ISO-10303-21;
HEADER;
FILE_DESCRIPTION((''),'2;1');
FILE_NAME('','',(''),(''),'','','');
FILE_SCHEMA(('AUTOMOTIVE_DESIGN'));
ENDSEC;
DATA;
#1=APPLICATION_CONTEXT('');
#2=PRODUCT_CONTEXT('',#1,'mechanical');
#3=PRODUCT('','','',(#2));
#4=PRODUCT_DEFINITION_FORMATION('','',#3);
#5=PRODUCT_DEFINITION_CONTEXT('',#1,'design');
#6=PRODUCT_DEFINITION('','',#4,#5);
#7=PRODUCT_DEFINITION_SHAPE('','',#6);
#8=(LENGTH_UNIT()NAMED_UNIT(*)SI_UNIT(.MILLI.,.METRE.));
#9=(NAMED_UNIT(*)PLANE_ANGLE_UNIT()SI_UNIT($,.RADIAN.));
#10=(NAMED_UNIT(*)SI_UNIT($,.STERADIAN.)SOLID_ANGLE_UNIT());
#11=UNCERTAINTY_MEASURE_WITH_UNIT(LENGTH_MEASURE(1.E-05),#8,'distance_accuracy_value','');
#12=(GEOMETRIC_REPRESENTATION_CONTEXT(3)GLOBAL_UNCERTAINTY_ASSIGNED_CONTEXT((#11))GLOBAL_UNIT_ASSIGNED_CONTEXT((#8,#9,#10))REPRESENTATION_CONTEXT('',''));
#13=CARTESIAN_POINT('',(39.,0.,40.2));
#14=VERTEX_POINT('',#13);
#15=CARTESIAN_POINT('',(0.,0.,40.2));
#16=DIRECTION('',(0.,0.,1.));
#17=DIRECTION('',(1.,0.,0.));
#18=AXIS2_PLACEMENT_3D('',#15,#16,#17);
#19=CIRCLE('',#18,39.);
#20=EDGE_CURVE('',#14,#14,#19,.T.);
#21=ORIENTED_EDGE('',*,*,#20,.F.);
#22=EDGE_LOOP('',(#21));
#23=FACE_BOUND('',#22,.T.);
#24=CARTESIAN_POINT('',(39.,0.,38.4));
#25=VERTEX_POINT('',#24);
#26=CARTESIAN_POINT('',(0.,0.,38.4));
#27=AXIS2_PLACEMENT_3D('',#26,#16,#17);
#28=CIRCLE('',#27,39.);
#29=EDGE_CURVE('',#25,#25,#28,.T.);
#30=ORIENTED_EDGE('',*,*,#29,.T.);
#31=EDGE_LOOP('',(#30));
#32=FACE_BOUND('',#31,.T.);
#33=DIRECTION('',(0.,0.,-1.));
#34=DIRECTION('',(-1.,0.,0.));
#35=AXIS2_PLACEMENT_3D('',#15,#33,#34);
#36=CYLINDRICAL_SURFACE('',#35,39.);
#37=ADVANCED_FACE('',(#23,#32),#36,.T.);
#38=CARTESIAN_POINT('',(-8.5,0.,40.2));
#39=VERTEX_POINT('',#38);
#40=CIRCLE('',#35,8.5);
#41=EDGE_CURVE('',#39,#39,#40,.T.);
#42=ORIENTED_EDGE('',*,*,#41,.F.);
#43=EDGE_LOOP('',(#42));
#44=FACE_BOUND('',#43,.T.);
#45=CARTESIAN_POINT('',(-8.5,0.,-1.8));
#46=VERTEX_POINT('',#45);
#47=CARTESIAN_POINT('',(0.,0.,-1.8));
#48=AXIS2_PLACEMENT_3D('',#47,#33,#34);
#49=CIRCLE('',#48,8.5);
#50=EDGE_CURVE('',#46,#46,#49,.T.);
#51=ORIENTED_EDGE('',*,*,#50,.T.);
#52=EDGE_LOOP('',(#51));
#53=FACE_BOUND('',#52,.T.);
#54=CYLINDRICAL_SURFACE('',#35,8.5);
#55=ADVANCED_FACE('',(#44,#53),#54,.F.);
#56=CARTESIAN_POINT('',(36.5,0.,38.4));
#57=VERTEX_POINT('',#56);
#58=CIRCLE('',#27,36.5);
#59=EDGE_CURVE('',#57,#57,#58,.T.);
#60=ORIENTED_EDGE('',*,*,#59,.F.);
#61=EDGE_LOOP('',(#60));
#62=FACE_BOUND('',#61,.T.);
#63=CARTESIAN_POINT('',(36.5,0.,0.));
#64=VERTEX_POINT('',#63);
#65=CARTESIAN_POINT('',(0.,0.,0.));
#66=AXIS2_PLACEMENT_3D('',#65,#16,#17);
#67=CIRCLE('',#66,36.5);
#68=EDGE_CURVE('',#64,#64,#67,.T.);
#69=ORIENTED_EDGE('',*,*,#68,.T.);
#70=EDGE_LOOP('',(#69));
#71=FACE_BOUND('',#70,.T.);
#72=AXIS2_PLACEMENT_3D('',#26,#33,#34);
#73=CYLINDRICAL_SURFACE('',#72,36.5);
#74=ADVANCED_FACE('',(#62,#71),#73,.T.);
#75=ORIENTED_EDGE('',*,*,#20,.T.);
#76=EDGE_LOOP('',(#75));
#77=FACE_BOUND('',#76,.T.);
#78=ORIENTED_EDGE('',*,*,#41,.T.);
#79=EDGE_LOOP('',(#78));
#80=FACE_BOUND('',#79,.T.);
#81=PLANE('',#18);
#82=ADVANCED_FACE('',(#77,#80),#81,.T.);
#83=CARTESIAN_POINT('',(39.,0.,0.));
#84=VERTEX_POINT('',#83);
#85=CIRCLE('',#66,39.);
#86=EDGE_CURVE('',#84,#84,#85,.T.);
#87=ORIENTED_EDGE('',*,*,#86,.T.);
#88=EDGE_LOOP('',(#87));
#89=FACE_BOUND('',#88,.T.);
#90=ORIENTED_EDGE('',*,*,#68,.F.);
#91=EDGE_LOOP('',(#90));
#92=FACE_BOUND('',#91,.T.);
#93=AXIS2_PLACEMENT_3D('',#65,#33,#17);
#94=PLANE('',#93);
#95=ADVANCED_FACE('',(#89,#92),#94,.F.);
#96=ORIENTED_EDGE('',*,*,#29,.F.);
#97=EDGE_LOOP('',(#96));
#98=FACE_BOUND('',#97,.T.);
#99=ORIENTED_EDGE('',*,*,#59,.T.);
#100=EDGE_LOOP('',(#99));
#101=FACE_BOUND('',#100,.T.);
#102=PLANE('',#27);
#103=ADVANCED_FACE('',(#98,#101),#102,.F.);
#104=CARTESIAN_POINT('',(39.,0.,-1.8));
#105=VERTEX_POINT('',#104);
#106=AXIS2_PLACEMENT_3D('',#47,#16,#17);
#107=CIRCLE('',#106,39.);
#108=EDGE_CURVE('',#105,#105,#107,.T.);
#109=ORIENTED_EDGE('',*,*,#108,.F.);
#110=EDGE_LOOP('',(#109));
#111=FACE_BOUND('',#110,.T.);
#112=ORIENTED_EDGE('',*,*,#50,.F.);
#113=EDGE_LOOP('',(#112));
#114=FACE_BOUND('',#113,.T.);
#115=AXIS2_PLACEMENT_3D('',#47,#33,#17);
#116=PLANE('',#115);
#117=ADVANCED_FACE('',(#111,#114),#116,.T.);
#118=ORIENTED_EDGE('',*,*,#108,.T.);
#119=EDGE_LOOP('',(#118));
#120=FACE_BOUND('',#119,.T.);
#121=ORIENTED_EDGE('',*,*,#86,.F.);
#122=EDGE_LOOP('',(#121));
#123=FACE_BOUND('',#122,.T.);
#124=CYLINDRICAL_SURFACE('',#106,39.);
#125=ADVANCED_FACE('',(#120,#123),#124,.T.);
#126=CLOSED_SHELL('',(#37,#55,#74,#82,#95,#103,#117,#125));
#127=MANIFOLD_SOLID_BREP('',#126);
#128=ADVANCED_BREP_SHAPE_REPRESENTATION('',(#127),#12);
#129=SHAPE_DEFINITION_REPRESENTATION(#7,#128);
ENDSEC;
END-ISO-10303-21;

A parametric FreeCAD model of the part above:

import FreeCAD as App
import Part
import Sketcher

doc = App.newDocument("Part")
body = doc.addObject("PartDesign::Body", "Body")

sketch1 = doc.addObject("Sketcher::SketchObject", "Sketch")
body.addObject(sketch1)
sketch1.AttachmentSupport = (doc.XY_Plane, [""])
sketch1.MapMode = "FlatFace"
sketch1.addGeometry(Part.Circle(App.Vector(0, 0, 0), App.Vector(0, 0, 1), 36), False)
sketch1.addConstraint(Sketcher.Constraint("Coincident", 0, 3, -1, 1))
sketch1.addConstraint(Sketcher.Constraint("Diameter", 0, 73.0))
pad1 = doc.addObject("PartDesign::Pad", "Pad")
body.addObject(pad1)
pad1.Profile = sketch1
pad1.Length = 38.4

sketch2 = doc.addObject("Sketcher::SketchObject", "Sketch001")
body.addObject(sketch2)
sketch2.AttachmentSupport = (doc.XY_Plane, [""])
sketch2.MapMode = "FlatFace"
sketch2.AttachmentOffset = App.Placement(App.Vector(0, 0, 38.4), App.Rotation())
sketch2.addGeometry(Part.Circle(App.Vector(0, 0, 0), App.Vector(0, 0, 1), 39), False)
sketch2.addConstraint(Sketcher.Constraint("Coincident", 0, 3, -1, 1))
sketch2.addConstraint(Sketcher.Constraint("Diameter", 0, 78.0))
pad2 = doc.addObject("PartDesign::Pad", "Pad001")
body.addObject(pad2)
pad2.Profile = sketch2
pad2.Length = 1.8
doc.recompute()

datumplane = doc.addObject("PartDesign::Plane", "DatumPlane")
body.addObject(datumplane)
datumplane.AttachmentSupport = (doc.XY_Plane, [""])
datumplane.MapMode = "FlatFace"
datumplane.AttachmentOffset = App.Placement(App.Vector(0, 0, 19.2), App.Rotation())
mirrored = doc.addObject("PartDesign::Mirrored", "Mirrored")
body.addObject(mirrored)
mirrored.Originals = [pad2]
mirrored.MirrorPlane = (datumplane, [""])
body.Tip = mirrored

sketch3 = doc.addObject("Sketcher::SketchObject", "Sketch002")
body.addObject(sketch3)
sketch3.AttachmentSupport = (doc.XY_Plane, [""])
sketch3.MapMode = "FlatFace"
sketch3.AttachmentOffset = App.Placement(App.Vector(0, 0, -1.8), App.Rotation())
sketch3.addGeometry(Part.Circle(App.Vector(0, 0, 0), App.Vector(0, 0, 1), 8), False)
sketch3.addConstraint(Sketcher.Constraint("Coincident", 0, 3, -1, 1))
sketch3.addConstraint(Sketcher.Constraint("Diameter", 0, 17.0))
pocket1 = doc.addObject("PartDesign::Pocket", "Pocket")
body.addObject(pocket1)
pocket1.Profile = sketch3
pocket1.Type = "ThroughAll"
pocket1.Reversed = True

doc.recompute()
